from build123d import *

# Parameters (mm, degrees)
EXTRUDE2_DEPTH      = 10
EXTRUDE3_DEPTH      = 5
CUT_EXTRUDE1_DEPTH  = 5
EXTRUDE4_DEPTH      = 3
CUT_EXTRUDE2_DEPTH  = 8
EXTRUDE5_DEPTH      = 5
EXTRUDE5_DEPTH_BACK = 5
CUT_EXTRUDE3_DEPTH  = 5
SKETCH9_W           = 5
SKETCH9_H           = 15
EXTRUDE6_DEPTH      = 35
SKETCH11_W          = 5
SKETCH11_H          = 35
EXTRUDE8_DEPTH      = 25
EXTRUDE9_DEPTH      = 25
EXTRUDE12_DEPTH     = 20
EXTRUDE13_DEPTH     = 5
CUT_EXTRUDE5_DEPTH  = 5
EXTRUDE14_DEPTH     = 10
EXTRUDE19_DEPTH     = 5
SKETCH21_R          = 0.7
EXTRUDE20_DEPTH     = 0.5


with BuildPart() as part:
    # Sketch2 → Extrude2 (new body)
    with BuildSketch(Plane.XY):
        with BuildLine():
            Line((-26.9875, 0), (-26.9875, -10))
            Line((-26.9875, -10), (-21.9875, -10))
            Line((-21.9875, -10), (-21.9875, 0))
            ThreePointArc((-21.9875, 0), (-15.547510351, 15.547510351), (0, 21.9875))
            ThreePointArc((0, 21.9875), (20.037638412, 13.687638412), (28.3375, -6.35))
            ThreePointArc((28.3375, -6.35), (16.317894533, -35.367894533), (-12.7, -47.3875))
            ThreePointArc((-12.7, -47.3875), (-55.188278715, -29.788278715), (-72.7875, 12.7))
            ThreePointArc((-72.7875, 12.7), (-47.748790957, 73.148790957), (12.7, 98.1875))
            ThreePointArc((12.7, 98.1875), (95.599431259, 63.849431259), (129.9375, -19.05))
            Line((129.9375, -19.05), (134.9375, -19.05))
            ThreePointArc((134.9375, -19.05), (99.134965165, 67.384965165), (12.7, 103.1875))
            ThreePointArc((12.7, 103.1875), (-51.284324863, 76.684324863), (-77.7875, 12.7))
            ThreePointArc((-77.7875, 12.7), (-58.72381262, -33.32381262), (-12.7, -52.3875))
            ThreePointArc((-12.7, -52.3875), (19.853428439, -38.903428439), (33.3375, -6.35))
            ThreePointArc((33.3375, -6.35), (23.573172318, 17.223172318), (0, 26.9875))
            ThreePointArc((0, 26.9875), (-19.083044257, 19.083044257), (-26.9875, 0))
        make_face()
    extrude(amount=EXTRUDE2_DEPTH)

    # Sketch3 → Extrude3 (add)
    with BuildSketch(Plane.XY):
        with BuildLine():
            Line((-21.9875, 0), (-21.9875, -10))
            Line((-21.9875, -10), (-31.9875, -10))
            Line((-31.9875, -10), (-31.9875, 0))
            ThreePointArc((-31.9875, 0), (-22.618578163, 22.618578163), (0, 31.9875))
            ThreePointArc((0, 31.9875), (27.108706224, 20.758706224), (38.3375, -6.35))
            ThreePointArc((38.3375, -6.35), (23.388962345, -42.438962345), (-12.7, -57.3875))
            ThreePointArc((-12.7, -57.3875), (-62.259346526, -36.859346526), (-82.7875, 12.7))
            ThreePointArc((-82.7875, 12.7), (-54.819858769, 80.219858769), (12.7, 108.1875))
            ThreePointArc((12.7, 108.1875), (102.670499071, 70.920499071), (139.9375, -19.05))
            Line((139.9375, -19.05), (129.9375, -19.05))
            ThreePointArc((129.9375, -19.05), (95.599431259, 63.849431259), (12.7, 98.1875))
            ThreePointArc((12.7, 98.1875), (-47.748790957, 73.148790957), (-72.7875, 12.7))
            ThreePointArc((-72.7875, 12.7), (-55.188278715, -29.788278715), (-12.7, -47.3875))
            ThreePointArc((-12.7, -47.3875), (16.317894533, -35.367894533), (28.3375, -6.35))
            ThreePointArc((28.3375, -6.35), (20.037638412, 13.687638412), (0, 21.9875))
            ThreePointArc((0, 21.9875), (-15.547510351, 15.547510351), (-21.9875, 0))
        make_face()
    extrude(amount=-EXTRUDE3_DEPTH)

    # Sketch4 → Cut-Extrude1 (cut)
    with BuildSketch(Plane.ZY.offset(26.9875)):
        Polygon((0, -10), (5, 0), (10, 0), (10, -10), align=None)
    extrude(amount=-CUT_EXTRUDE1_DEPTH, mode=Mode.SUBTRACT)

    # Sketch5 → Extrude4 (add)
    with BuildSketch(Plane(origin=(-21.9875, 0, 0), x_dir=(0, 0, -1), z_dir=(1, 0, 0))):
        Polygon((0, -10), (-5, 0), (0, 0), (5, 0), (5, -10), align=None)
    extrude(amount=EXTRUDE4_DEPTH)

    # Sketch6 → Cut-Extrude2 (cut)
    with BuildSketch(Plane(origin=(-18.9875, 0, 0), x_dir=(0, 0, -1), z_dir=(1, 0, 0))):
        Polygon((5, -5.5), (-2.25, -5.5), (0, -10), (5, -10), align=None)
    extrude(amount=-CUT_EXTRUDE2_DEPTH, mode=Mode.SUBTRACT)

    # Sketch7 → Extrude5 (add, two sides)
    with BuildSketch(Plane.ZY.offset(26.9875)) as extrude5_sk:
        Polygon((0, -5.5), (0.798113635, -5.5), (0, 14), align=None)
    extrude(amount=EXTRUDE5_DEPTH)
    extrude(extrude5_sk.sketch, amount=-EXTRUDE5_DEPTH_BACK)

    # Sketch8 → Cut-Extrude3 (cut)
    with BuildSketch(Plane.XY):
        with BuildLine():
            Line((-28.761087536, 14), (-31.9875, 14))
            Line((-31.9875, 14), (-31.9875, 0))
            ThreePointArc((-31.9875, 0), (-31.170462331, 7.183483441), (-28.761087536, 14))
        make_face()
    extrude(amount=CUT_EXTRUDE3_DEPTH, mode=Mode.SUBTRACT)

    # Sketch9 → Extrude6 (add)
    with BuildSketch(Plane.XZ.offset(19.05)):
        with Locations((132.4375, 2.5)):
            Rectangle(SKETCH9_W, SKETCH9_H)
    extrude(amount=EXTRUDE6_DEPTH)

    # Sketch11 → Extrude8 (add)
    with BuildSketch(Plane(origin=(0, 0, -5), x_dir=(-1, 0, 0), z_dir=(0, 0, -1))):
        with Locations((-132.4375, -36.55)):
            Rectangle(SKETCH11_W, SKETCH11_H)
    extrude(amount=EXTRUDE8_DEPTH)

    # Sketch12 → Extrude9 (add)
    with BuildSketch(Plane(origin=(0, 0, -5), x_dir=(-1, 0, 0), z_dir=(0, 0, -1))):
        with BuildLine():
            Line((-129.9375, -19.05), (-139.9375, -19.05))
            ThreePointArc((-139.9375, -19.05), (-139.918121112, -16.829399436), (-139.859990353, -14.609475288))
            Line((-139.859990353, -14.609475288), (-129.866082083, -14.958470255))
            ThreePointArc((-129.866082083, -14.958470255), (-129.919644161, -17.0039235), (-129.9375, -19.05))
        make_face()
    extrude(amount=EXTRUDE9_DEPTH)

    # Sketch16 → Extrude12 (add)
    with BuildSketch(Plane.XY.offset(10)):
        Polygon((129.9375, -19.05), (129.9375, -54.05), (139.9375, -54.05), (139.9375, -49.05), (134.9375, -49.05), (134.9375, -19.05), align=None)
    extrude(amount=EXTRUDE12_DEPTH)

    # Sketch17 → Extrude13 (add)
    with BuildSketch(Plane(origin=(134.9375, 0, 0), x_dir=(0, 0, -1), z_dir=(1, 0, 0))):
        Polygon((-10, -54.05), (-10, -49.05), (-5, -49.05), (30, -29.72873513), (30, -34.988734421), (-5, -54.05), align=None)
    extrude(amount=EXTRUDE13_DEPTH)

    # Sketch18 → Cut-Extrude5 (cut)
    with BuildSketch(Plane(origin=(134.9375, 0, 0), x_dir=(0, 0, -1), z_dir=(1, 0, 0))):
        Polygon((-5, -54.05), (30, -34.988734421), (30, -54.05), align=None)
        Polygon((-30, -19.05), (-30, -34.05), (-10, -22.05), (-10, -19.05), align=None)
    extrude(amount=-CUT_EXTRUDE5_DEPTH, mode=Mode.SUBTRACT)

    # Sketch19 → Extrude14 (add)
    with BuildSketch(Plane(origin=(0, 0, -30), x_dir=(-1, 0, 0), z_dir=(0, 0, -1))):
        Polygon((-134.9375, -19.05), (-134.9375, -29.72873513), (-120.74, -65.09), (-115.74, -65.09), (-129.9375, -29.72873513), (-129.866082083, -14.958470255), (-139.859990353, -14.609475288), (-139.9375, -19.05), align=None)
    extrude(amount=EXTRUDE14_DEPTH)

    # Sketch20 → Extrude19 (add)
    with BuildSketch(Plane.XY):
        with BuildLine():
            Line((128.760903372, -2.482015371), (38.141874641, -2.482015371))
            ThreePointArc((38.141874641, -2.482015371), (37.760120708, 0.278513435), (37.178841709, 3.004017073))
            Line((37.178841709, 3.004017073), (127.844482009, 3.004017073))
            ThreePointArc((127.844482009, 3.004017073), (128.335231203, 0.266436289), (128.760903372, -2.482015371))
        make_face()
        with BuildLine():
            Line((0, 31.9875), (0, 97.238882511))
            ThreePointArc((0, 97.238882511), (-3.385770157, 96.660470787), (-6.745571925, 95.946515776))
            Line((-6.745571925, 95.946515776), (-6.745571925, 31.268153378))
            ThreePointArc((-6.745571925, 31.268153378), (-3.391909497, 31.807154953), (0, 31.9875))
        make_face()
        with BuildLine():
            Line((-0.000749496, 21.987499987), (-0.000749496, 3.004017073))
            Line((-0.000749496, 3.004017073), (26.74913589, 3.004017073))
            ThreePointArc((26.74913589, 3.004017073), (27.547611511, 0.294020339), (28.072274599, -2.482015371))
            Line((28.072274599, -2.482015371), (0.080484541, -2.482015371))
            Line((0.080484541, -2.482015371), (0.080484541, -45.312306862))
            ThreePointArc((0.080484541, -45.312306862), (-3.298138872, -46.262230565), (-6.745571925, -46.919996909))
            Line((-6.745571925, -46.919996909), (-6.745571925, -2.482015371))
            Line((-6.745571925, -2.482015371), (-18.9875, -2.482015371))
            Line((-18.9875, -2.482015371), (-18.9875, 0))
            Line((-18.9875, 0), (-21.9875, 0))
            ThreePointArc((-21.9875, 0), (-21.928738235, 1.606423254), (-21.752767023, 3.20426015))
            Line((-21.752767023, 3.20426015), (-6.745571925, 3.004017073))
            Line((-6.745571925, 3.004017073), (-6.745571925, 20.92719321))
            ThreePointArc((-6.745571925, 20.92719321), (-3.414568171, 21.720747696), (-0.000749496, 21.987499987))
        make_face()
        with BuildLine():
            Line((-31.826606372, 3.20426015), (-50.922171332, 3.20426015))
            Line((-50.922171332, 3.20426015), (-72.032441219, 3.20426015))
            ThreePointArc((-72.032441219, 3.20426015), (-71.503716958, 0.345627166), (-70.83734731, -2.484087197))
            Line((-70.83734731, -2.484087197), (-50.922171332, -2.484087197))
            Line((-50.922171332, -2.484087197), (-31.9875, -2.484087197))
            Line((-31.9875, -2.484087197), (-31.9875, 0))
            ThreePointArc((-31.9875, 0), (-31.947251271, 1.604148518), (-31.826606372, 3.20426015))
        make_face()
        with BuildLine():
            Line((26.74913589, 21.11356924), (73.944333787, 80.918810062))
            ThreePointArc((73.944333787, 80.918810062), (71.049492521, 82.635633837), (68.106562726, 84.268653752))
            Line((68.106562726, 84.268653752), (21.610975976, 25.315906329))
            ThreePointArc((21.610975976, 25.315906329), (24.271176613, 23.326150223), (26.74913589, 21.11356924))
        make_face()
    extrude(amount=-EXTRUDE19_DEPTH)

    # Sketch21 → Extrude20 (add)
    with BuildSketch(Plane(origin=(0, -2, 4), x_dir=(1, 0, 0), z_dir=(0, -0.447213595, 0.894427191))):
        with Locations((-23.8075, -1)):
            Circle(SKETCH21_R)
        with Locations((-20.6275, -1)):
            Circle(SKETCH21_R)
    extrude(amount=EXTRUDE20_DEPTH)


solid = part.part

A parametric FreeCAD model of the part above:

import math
import FreeCAD as App
import Part
import Sketcher
from FreeCAD import Vector
Q = App.Units.Quantity

doc = App.newDocument("Part")
params = doc.addObject("Spreadsheet::Sheet", "Params")
for row, (alias, value) in enumerate([
    ("sketch1_width", "5 mm"),
    ("sketch1_height", "10 mm"),
    ("pad1_length", "10 mm"),
    ("sketch2_width", "10 mm"),
    ("pad2_length", "5 mm"),
    ("sketch3_width", "10 mm"),
    ("sketch3_height", "5 mm"),
    ("pocket1_length", "5 mm"),
    ("sketch4_width", "10 mm"),
    ("pad3_length", "3 mm"),
    ("sketch5_height", "5 mm"),
    ("sketch5_width", "4.5 mm"),
    ("sketch5_height2", "7.25 mm"),
    ("pocket2_length", "8 mm"),
    ("sketch6_width", "19.5 mm"),
    ("pad4_length", "5 mm"),
    ("pad4_length2", "5 mm"),
    ("sketch7_height", "14 mm"),
    ("pocket3_length", "5 mm"),
    ("sketch8_width", "5 mm"),
    ("sketch8_height", "15 mm"),
    ("pad5_length", "35 mm"),
    ("sketch9_width", "5 mm"),
    ("sketch9_height", "35 mm"),
    ("pad6_length", "25 mm"),
    ("sketch10_width", "10 mm"),
    ("pad7_length", "25 mm"),
    ("sketch11_width", "10 mm"),
    ("sketch11_height", "35 mm"),
    ("pad8_length", "20 mm"),
    ("sketch12_width", "5 mm"),
    ("sketch12_width2", "5.259999 mm"),
    ("pad9_length", "5 mm"),
    ("sketch13_width", "15 mm"),
    ("sketch13_width2", "3 mm"),
    ("sketch13_height", "35 mm"),
    ("sketch13_height2", "20 mm"),
    ("pocket4_length", "5 mm"),
    ("sketch14_width", "5 mm"),
    ("sketch14_length", "10 mm"),
    ("pad10_length", "10 mm"),
    ("sketch15_width", "3 mm"),
    ("pad11_length", "5 mm"),
    ("sketch16_diameter", "1.4 mm"),
    ("pad12_length", "0.5 mm"),
], start=1):
    params.set(f"A{row}", alias)
    params.set(f"B{row}", "=" + value)
    params.setAlias(f"B{row}", alias)

body = doc.addObject("PartDesign::Body", "Body")

# Sketch on XY plane
sketch1 = body.newObject("Sketcher::SketchObject", "Sketch")
sketch1.AttachmentSupport = (doc.getObject("XY_Plane"), [""])
sketch1.MapMode = "FlatFace"
sketch1.addGeometry(Part.LineSegment(Vector(-27, 0, 0), Vector(-27, -10, 0)), False)
sketch1.addGeometry(Part.LineSegment(Vector(-27, -10, 0), Vector(-22, -10, 0)), False)
sketch1.addGeometry(Part.LineSegment(Vector(-22, -10, 0), Vector(-22, 0, 0)), False)
sketch1.addGeometry(Part.ArcOfCircle(Part.Circle(Vector(0, 0, 0), Vector(0, 0, 1), 22), math.radians(90), math.radians(180)), False)
sketch1.addGeometry(Part.ArcOfCircle(Part.Circle(Vector(0, -6, 0), Vector(0, 0, 1), 28), math.radians(0), math.radians(90)), False)
sketch1.addGeometry(Part.ArcOfCircle(Part.Circle(Vector(-13, -6, 0), Vector(0, 0, 1), 41), math.radians(-90), math.radians(0)), False)
sketch1.addGeometry(Part.ArcOfCircle(Part.Circle(Vector(-13, 13, 0), Vector(0, 0, 1), 60), math.radians(180), math.radians(270)), False)
sketch1.addGeometry(Part.ArcOfCircle(Part.Circle(Vector(13, 13, 0), Vector(0, 0, 1), 85), math.radians(90), math.radians(180)), False)
sketch1.addGeometry(Part.ArcOfCircle(Part.Circle(Vector(13, -19, 0), Vector(0, 0, 1), 117), math.radians(0), math.radians(90)), False)
sketch1.addGeometry(Part.LineSegment(Vector(130, -19, 0), Vector(135, -19, 0)), False)
sketch1.addGeometry(Part.ArcOfCircle(Part.Circle(Vector(13, -19, 0), Vector(0, 0, 1), 122), math.radians(0), math.radians(90)), False)
sketch1.addGeometry(Part.ArcOfCircle(Part.Circle(Vector(13, 13, 0), Vector(0, 0, 1), 90), math.radians(90), math.radians(180)), False)
sketch1.addGeometry(Part.ArcOfCircle(Part.Circle(Vector(-13, 13, 0), Vector(0, 0, 1), 65), math.radians(-180), math.radians(-90)), False)
sketch1.addGeometry(Part.ArcOfCircle(Part.Circle(Vector(-13, -6, 0), Vector(0, 0, 1), 46), math.radians(-90), math.radians(0)), False)
sketch1.addGeometry(Part.ArcOfCircle(Part.Circle(Vector(0, -6, 0), Vector(0, 0, 1), 33), math.radians(0), math.radians(90)), False)
sketch1.addGeometry(Part.ArcOfCircle(Part.Circle(Vector(0, 0, 0), Vector(0, 0, 1), 27), math.radians(90), math.radians(180)), False)
sketch1.addConstraint(Sketcher.Constraint("Coincident", 0, 2, 1, 1))
sketch1.addConstraint(Sketcher.Constraint("Coincident", 1, 2, 2, 1))
sketch1.addConstraint(Sketcher.Constraint("Tangent", 2, 2, 3, 2))
sketch1.addConstraint(Sketcher.Constraint("Tangent", 3, 1, 4, 2))
sketch1.addConstraint(Sketcher.Constraint("Tangent", 4, 1, 5, 2))
sketch1.addConstraint(Sketcher.Constraint("Tangent", 5, 1, 6, 2))
sketch1.addConstraint(Sketcher.Constraint("Tangent", 6, 1, 7, 2))
sketch1.addConstraint(Sketcher.Constraint("Tangent", 7, 1, 8, 2))
sketch1.addConstraint(Sketcher.Constraint("Coincident", 8, 1, 9, 1))
sketch1.addConstraint(Sketcher.Constraint("Coincident", 9, 2, 10, 1))
sketch1.addConstraint(Sketcher.Constraint("Tangent", 10, 2, 11, 1))
sketch1.addConstraint(Sketcher.Constraint("Tangent", 11, 2, 12, 1))
sketch1.addConstraint(Sketcher.Constraint("Tangent", 12, 2, 13, 1))
sketch1.addConstraint(Sketcher.Constraint("Tangent", 13, 2, 14, 1))
sketch1.addConstraint(Sketcher.Constraint("Tangent", 14, 2, 15, 1))
sketch1.addConstraint(Sketcher.Constraint("Tangent", 15, 2, 0, 1))
sketch1.addConstraint(Sketcher.Constraint("Vertical", 0))
sketch1.addConstraint(Sketcher.Constraint("Horizontal", 1))
sketch1.addConstraint(Sketcher.Constraint("Vertical", 2))
sketch1.addConstraint(Sketcher.Constraint("Horizontal", 9))
sketch1.addConstraint(Sketcher.Constraint("Coincident", 3, 3, -1, 1))
sketch1.addConstraint(Sketcher.Constraint("Coincident", 15, 3, -1, 1))
sketch1.addConstraint(Sketcher.Constraint("Coincident", 10, 3, 8, 3))
sketch1.addConstraint(Sketcher.Constraint("Coincident", 11, 3, 7, 3))
sketch1.addConstraint(Sketcher.Constraint("Coincident", 12, 3, 6, 3))
sketch1.addConstraint(Sketcher.Constraint("Coincident", 13, 3, 5, 3))
sketch1.addConstraint(Sketcher.Constraint("Coincident", 14, 3, 4, 3))
sketch1.addConstraint(Sketcher.Constraint("Symmetric", 6, 3, 7, 3, -2))
sketch1.addConstraint(Sketcher.Constraint("PointOnObject", 4, 3, -2))
sketch1.addConstraint(Sketcher.Constraint("Horizontal", 4, 3, 5, 3))
sketch1.addConstraint(Sketcher.Constraint("Horizontal", 10, 3, 8, 1))
sketch1.addConstraint(Sketcher.Constraint("Vertical", 5, 3, 6, 3))
sketch1.addConstraint(Sketcher.Constraint("Vertical", 7, 3, 8, 3))
sketch1.addConstraint(Sketcher.Constraint("DistanceX", 1, 1, 1, 2, 5.0))
sketch1.addConstraint(Sketcher.Constraint("DistanceY", 0, 2, 0, 1, 10.0))
sketch1.addConstraint(Sketcher.Constraint("DistanceX", 5, 3, -1, 1, 12.7))
sketch1.addConstraint(Sketcher.Constraint("DistanceY", -1, 1, 6, 3, 12.7))
sketch1.addConstraint(Sketcher.Constraint("Radius", 3, 21.9875))
sketch1.addConstraint(Sketcher.Constraint("Radius", 4, 28.3375))
sketch1.addConstraint(Sketcher.Constraint("Radius", 8, 117.2375))
sketch1.setExpression("Constraints[33]", "Params.sketch1_width")
sketch1.setExpression("Constraints[34]", "Params.sketch1_height")
pad1 = body.newObject("PartDesign::Pad", "Pad")
pad1.Profile = sketch1
pad1.setExpression("Length", "Params.pad1_length")

# Sketch on XY plane
sketch2 = body.newObject("Sketcher::SketchObject", "Sketch001")
sketch2.AttachmentSupport = (doc.getObject("XY_Plane"), [""])
sketch2.MapMode = "FlatFace"
sketch2.addGeometry(Part.LineSegment(Vector(-22, -10, 0), Vector(-22, 0, 0)), False)
sketch2.addGeometry(Part.ArcOfCircle(Part.Circle(Vector(0, 0, 0), Vector(0, 0, 1), 22), math.radians(90), math.radians(180)), False)
sketch2.addGeometry(Part.ArcOfCircle(Part.Circle(Vector(0, -6, 0), Vector(0, 0, 1), 28), math.radians(0), math.radians(90)), False)
sketch2.addGeometry(Part.ArcOfCircle(Part.Circle(Vector(-13, -6, 0), Vector(0, 0, 1), 41), math.radians(-90), math.radians(0)), False)
sketch2.addGeometry(Part.ArcOfCircle(Part.Circle(Vector(-13, 13, 0), Vector(0, 0, 1), 60), math.radians(180), math.radians(270)), False)
sketch2.addGeometry(Part.ArcOfCircle(Part.Circle(Vector(13, 13, 0), Vector(0, 0, 1), 85), math.radians(90), math.radians(180)), False)
sketch2.addGeometry(Part.ArcOfCircle(Part.Circle(Vector(13, -19, 0), Vector(0, 0, 1), 117), math.radians(0), math.radians(90)), False)
sketch2.addGeometry(Part.LineSegment(Vector(130, -19, 0), Vector(140, -19, 0)), False)
sketch2.addGeometry(Part.ArcOfCircle(Part.Circle(Vector(13, -19, 0), Vector(0, 0, 1), 127), math.radians(0), math.radians(90)), False)
sketch2.addGeometry(Part.ArcOfCircle(Part.Circle(Vector(13, 13, 0), Vector(0, 0, 1), 95), math.radians(90), math.radians(180)), False)
sketch2.addGeometry(Part.ArcOfCircle(Part.Circle(Vector(-13, 13, 0), Vector(0, 0, 1), 70), math.radians(-180), math.radians(-90)), False)
sketch2.addGeometry(Part.ArcOfCircle(Part.Circle(Vector(-13, -6, 0), Vector(0, 0, 1), 51), math.radians(-90), math.radians(0)), False)
sketch2.addGeometry(Part.ArcOfCircle(Part.Circle(Vector(0, -6, 0), Vector(0, 0, 1), 38), math.radians(0), math.radians(90)), False)
sketch2.addGeometry(Part.ArcOfCircle(Part.Circle(Vector(0, 0, 0), Vector(0, 0, 1), 32), math.radians(90), math.radians(180)), False)
sketch2.addGeometry(Part.LineSegment(Vector(-32, 0, 0), Vector(-32, -10, 0)), False)
sketch2.addGeometry(Part.LineSegment(Vector(-32, -10, 0), Vector(-22, -10, 0)), False)
sketch2.addConstraint(Sketcher.Constraint("Tangent", 0, 2, 1, 2))
sketch2.addConstraint(Sketcher.Constraint("Tangent", 1, 1, 2, 2))
sketch2.addConstraint(Sketcher.Constraint("Tangent", 2, 1, 3, 2))
sketch2.addConstraint(Sketcher.Constraint("Tangent", 3, 1, 4, 2))
sketch2.addConstraint(Sketcher.Constraint("Tangent", 4, 1, 5, 2))
sketch2.addConstraint(Sketcher.Constraint("Tangent", 5, 1, 6, 2))
sketch2.addConstraint(Sketcher.Constraint("Coincident", 6, 1, 7, 1))
sketch2.addConstraint(Sketcher.Constraint("Coincident", 7, 2, 8, 1))
sketch2.addConstraint(Sketcher.Constraint("Tangent", 8, 2, 9, 1))
sketch2.addConstraint(Sketcher.Constraint("Tangent", 9, 2, 10, 1))
sketch2.addConstraint(Sketcher.Constraint("Tangent", 10, 2, 11, 1))
sketch2.addConstraint(Sketcher.Constraint("Tangent", 11, 2, 12, 1))
sketch2.addConstraint(Sketcher.Constraint("Tangent", 12, 2, 13, 1))
sketch2.addConstraint(Sketcher.Constraint("Tangent", 13, 2, 14, 1))
sketch2.addConstraint(Sketcher.Constraint("Coincident", 14, 2, 15, 1))
sketch2.addConstraint(Sketcher.Constraint("Coincident", 15, 2, 0, 1))
sketch2.addConstraint(Sketcher.Constraint("Vertical", 0))
sketch2.addConstraint(Sketcher.Constraint("Horizontal", 7))
sketch2.addConstraint(Sketcher.Constraint("Vertical", 14))
sketch2.addConstraint(Sketcher.Constraint("Horizontal", 15))
sketch2.addConstraint(Sketcher.Constraint("Coincident", 1, 3, -1, 1))
sketch2.addConstraint(Sketcher.Constraint("Coincident", 13, 3, -1, 1))
sketch2.addConstraint(Sketcher.Constraint("Coincident", 8, 3, 6, 3))
sketch2.addConstraint(Sketcher.Constraint("Coincident", 9, 3, 5, 3))
sketch2.addConstraint(Sketcher.Constraint("Coincident", 10, 3, 4, 3))
sketch2.addConstraint(Sketcher.Constraint("Coincident", 11, 3, 3, 3))
sketch2.addConstraint(Sketcher.Constraint("Coincident", 12, 3, 2, 3))
sketch2.addConstraint(Sketcher.Constraint("Symmetric", 4, 3, 5, 3, -2))
sketch2.addConstraint(Sketcher.Constraint("PointOnObject", 2, 3, -2))
sketch2.addConstraint(Sketcher.Constraint("Horizontal", 2, 3, 3, 3))
sketch2.addConstraint(Sketcher.Constraint("Horizontal", 8, 3, 6, 1))
sketch2.addConstraint(Sketcher.Constraint("Vertical", 3, 3, 4, 3))
sketch2.addConstraint(Sketcher.Constraint("Vertical", 5, 3, 6, 3))
sketch2.addConstraint(Sketcher.Constraint("Equal", 15, 0))
sketch2.addConstraint(Sketcher.Constraint("DistanceX", 7, 1, 7, 2, 10.0))
sketch2.addConstraint(Sketcher.Constraint("DistanceX", 3, 3, -1, 1, 12.7))
sketch2.addConstraint(Sketcher.Constraint("DistanceY", -1, 1, 4, 3, 12.7))
sketch2.addConstraint(Sketcher.Constraint("Radius", 1, 21.9875))
sketch2.addConstraint(Sketcher.Constraint("Radius", 2, 28.3375))
sketch2.addConstraint(Sketcher.Constraint("Radius", 6, 117.2375))
sketch2.setExpression("Constraints[34]", "Params.sketch2_width")
pad2 = body.newObject("PartDesign::Pad", "Pad001")
pad2.Profile = sketch2
pad2.setExpression("Length", "Params.pad2_length")
pad2.Reversed = True

# Sketch on YZ plane
sketch3 = body.newObject("Sketcher::SketchObject", "Sketch002")
sketch3.AttachmentSupport = (doc.getObject("YZ_Plane"), [""])
sketch3.MapMode = "FlatFace"
sketch3.AttachmentOffset = App.Placement(Vector(0, 0, -26.9875), App.Rotation())
sketch3.addGeometry(Part.LineSegment(Vector(0, 5, 0), Vector(-10, 0, 0)), False)
sketch3.addGeometry(Part.LineSegment(Vector(-10, 0, 0), Vector(-10, 10, 0)), False)
sketch3.addGeometry(Part.LineSegment(Vector(-10, 10, 0), Vector(0, 10, 0)), False)
sketch3.addGeometry(Part.LineSegment(Vector(0, 10, 0), Vector(0, 5, 0)), False)
sketch3.addConstraint(Sketcher.Constraint("Coincident", 0, 2, 1, 1))
sketch3.addConstraint(Sketcher.Constraint("Coincident", 1, 2, 2, 1))
sketch3.addConstraint(Sketcher.Constraint("Coincident", 2, 2, 3, 1))
sketch3.addConstraint(Sketcher.Constraint("Coincident", 3, 2, 0, 1))
sketch3.addConstraint(Sketcher.Constraint("Vertical", 1))
sketch3.addConstraint(Sketcher.Constraint("Horizontal", 2))
sketch3.addConstraint(Sketcher.Constraint("Vertical", 3))
sketch3.addConstraint(Sketcher.Constraint("PointOnObject", 0, 2, -1))
sketch3.addConstraint(Sketcher.Constraint("PointOnObject", 2, 2, -2))
sketch3.addConstraint(Sketcher.Constraint("Equal", 2, 1))
sketch3.addConstraint(Sketcher.Constraint("DistanceX", 2, 1, 2, 2, 10.0))
sketch3.addConstraint(Sketcher.Constraint("DistanceY", 3, 2, 3, 1, 5.0))
sketch3.setExpression("Constraints[10]", "Params.sketch3_width")
sketch3.setExpression("Constraints[11]", "Params.sketch3_height")
pocket1 = body.newObject("PartDesign::Pocket", "Pocket")
pocket1.Profile = sketch3
pocket1.setExpression("Length", "Params.pocket1_length")
pocket1.Reversed = True

# Sketch on YZ plane
sketch4 = body.newObject("Sketcher::SketchObject", "Sketch003")
sketch4.AttachmentSupport = (doc.getObject("YZ_Plane"), [""])
sketch4.MapMode = "FlatFace"
sketch4.AttachmentOffset = App.Placement(Vector(0, 0, -21.9875), App.Rotation())
sketch4.addGeometry(Part.LineSegment(Vector(0, 5, 0), Vector(-10, 0, 0)), False)
sketch4.addGeometry(Part.LineSegment(Vector(-10, 0, 0), Vector(-10, -5, 0)), False)
sketch4.addGeometry(Part.LineSegment(Vector(-10, -5, 0), Vector(0, -5, 0)), False)
sketch4.addGeometry(Part.LineSegment(Vector(0, -5, 0), Vector(0, 5, 0)), False)
sketch4.addConstraint(Sketcher.Constraint("Coincident", 0, 2, 1, 1))
sketch4.addConstraint(Sketcher.Constraint("Coincident", 1, 2, 2, 1))
sketch4.addConstraint(Sketcher.Constraint("Coincident", 2, 2, 3, 1))
sketch4.addConstraint(Sketcher.Constraint("Coincident", 3, 2, 0, 1))
sketch4.addConstraint(Sketcher.Constraint("Vertical", 1))
sketch4.addConstraint(Sketcher.Constraint("Horizontal", 2))
sketch4.addConstraint(Sketcher.Constraint("Vertical", 3))
sketch4.addConstraint(Sketcher.Constraint("Symmetric", 2, 2, 3, 2, -1, 1))
sketch4.addConstraint(Sketcher.Constraint("PointOnObject", 0, 2, -1))
sketch4.addConstraint(Sketcher.Constraint("Equal", 2, 3))
sketch4.addConstraint(Sketcher.Constraint("DistanceX", 2, 1, 2, 2, 10.0))
sketch4.setExpression("Constraints[10]", "Params.sketch4_width")
pad3 = body.newObject("PartDesign::Pad", "Pad002")
pad3.Profile = sketch4
pad3.setExpression("Length", "Params.pad3_length")

# Sketch on YZ plane
sketch5 = body.newObject("Sketcher::SketchObject", "Sketch004")
sketch5.AttachmentSupport = (doc.getObject("YZ_Plane"), [""])
sketch5.MapMode = "FlatFace"
sketch5.AttachmentOffset = App.Placement(Vector(0, 0, -18.9875), App.Rotation())
sketch5.addGeometry(Part.LineSegment(Vector(-5.5, -5, 0), Vector(-5.5, 2.2, 0)), False)
sketch5.addGeometry(Part.LineSegment(Vector(-5.5, 2.2, 0), Vector(-10, 0, 0)), False)
sketch5.addGeometry(Part.LineSegment(Vector(-10, 0, 0), Vector(-10, -5, 0)), False)
sketch5.addGeometry(Part.LineSegment(Vector(-10, -5, 0), Vector(-5.5, -5, 0)), False)
sketch5.addConstraint(Sketcher.Constraint("Coincident", 0, 2, 1, 1))
sketch5.addConstraint(Sketcher.Constraint("Coincident", 1, 2, 2, 1))
sketch5.addConstraint(Sketcher.Constraint("Coincident", 2, 2, 3, 1))
sketch5.addConstraint(Sketcher.Constraint("Coincident", 3, 2, 0, 1))
sketch5.addConstraint(Sketcher.Constraint("Vertical", 0))
sketch5.addConstraint(Sketcher.Constraint("Vertical", 2))
sketch5.addConstraint(Sketcher.Constraint("Horizontal", 3))
sketch5.addConstraint(Sketcher.Constraint("PointOnObject", 1, 2, -1))
sketch5.addConstraint(Sketcher.Constraint("DistanceY", 2, 2, 2, 1, 5.0))
sketch5.addConstraint(Sketcher.Constraint("DistanceX", 3, 1, 3, 2, 4.5))
sketch5.addConstraint(Sketcher.Constraint("DistanceX", 1, 2, -1, 1, 10.0))
sketch5.addConstraint(Sketcher.Constraint("DistanceY", 0, 1, 0, 2, 7.25))
sketch5.setExpression("Constraints[8]", "Params.sketch5_height")
sketch5.setExpression("Constraints[9]", "Params.sketch5_width")
sketch5.setExpression("Constraints[11]", "Params.sketch5_height2")
pocket2 = body.newObject("PartDesign::Pocket", "Pocket001")
pocket2.Profile = sketch5
pocket2.setExpression("Length", "Params.pocket2_length")

# Sketch on YZ plane
sketch6 = body.newObject("Sketcher::SketchObject", "Sketch005")
sketch6.AttachmentSupport = (doc.getObject("YZ_Plane"), [""])
sketch6.MapMode = "FlatFace"
sketch6.AttachmentOffset = App.Placement(Vector(0, 0, -26.9875), App.Rotation())
sketch6.addGeometry(Part.LineSegment(Vector(-5.5, 0, 0), Vector(-5.5, 0.8, 0)), False)
sketch6.addGeometry(Part.LineSegment(Vector(-5.5, 0.8, 0), Vector(14, 0, 0)), False)
sketch6.addGeometry(Part.LineSegment(Vector(14, 0, 0), Vector(-5.5, 0, 0)), False)
sketch6.addConstraint(Sketcher.Constraint("Coincident", 0, 2, 1, 1))
sketch6.addConstraint(Sketcher.Constraint("Coincident", 1, 2, 2, 1))
sketch6.addConstraint(Sketcher.Constraint("Coincident", 2, 2, 0, 1))
sketch6.addConstraint(Sketcher.Constraint("Vertical", 0))
sketch6.addConstraint(Sketcher.Constraint("Horizontal", 2))
sketch6.addConstraint(Sketcher.Constraint("PointOnObject", 1, 2, -1))
sketch6.addConstraint(Sketcher.Constraint("DistanceX", 2, 2, 2, 1, 19.5))
sketch6.addConstraint(Sketcher.Constraint("DistanceX", -1, 1, 1, 2, 14.0))
sketch6.addConstraint(Sketcher.Constraint("DistanceY", 0, 1, 0, 2, 0.798114))
sketch6.setExpression("Constraints[6]", "Params.sketch6_width")
pad4 = body.newObject("PartDesign::Pad", "Pad003")
pad4.Profile = sketch6
pad4.Type = "TwoLengths"
pad4.setExpression("Length", "Params.pad4_length")
pad4.setExpression("Length2", "Params.pad4_length2")
pad4.Reversed = True

# Sketch on XY plane
sketch7 = body.newObject("Sketcher::SketchObject", "Sketch006")
sketch7.AttachmentSupport = (doc.getObject("XY_Plane"), [""])
sketch7.MapMode = "FlatFace"
sketch7.addGeometry(Part.LineSegment(Vector(-28.8, 14, 0), Vector(-32, 14, 0)), False)
sketch7.addGeometry(Part.LineSegment(Vector(-32, 14, 0), Vector(-32, 0, 0)), False)
sketch7.addGeometry(Part.ArcOfCircle(Part.Circle(Vector(0, 0, 0), Vector(0, 0, 1), 32), math.radians(154), math.radians(180)), False)
sketch7.addConstraint(Sketcher.Constraint("Coincident", 0, 2, 1, 1))
sketch7.addConstraint(Sketcher.Constraint("Tangent", 1, 2, 2, 2))
sketch7.addConstraint(Sketcher.Constraint("Coincident", 2, 1, 0, 1))
sketch7.addConstraint(Sketcher.Constraint("Horizontal", 0))
sketch7.addConstraint(Sketcher.Constraint("Vertical", 1))
sketch7.addConstraint(Sketcher.Constraint("Coincident", 2, 3, -1, 1))
sketch7.addConstraint(Sketcher.Constraint("DistanceY", 1, 2, 1, 1, 14.0))
sketch7.addConstraint(Sketcher.Constraint("Radius", 2, 31.9875))
sketch7.setExpression("Constraints[6]", "Params.sketch7_height")
pocket3 = body.newObject("PartDesign::Pocket", "Pocket002")
pocket3.Profile = sketch7
pocket3.setExpression("Length", "Params.pocket3_length")
pocket3.Reversed = True

# Sketch on XZ plane
sketch8 = body.newObject("Sketcher::SketchObject", "Sketch007")
sketch8.AttachmentSupport = (doc.getObject("XZ_Plane"), [""])
sketch8.MapMode = "FlatFace"
sketch8.AttachmentOffset = App.Placement(Vector(0, 0, 19.05), App.Rotation())
sketch8.addGeometry(Part.LineSegment(Vector(130, 10, 0), Vector(130, -5, 0)), False)
sketch8.addGeometry(Part.LineSegment(Vector(130, -5, 0), Vector(135, -5, 0)), False)
sketch8.addGeometry(Part.LineSegment(Vector(135, -5, 0), Vector(135, 10, 0)), False)
sketch8.addGeometry(Part.LineSegment(Vector(135, 10, 0), Vector(130, 10, 0)), False)
sketch8.addConstraint(Sketcher.Constraint("Coincident", 0, 2, 1, 1))
sketch8.addConstraint(Sketcher.Constraint("Coincident", 1, 2, 2, 1))
sketch8.addConstraint(Sketcher.Constraint("Coincident", 2, 2, 3, 1))
sketch8.addConstraint(Sketcher.Constraint("Coincident", 3, 2, 0, 1))
sketch8.addConstraint(Sketcher.Constraint("Vertical", 0))
sketch8.addConstraint(Sketcher.Constraint("Horizontal", 1))
sketch8.addConstraint(Sketcher.Constraint("Vertical", 2))
sketch8.addConstraint(Sketcher.Constraint("Horizontal", 3))
sketch8.addConstraint(Sketcher.Constraint("DistanceX", 1, 1, 1, 2, 5.0))
sketch8.addConstraint(Sketcher.Constraint("DistanceY", 0, 2, 0, 1, 15.0))
sketch8.addConstraint(Sketcher.Constraint("DistanceY", 0, 2, -1, 1, 5.0))
sketch8.addConstraint(Sketcher.Constraint("DistanceX", -1, 1, 0, 2, 129.9375))
sketch8.setExpression("Constraints[8]", "Params.sketch8_width")
sketch8.setExpression("Constraints[9]", "Params.sketch8_height")
pad5 = body.newObject("PartDesign::Pad", "Pad004")
pad5.Profile = sketch8
pad5.setExpression("Length", "Params.pad5_length")

# Sketch on XY plane
sketch9 = body.newObject("Sketcher::SketchObject", "Sketch008")
sketch9.AttachmentSupport = (doc.getObject("XY_Plane"), [""])
sketch9.MapMode = "FlatFace"
sketch9.AttachmentOffset = App.Placement(Vector(0, 0, -5), App.Rotation())
sketch9.addGeometry(Part.LineSegment(Vector(135, -19, 0), Vector(135, -54, 0)), False)
sketch9.addGeometry(Part.LineSegment(Vector(135, -54, 0), Vector(130, -54, 0)), False)
sketch9.addGeometry(Part.LineSegment(Vector(130, -54, 0), Vector(130, -19, 0)), False)
sketch9.addGeometry(Part.LineSegment(Vector(130, -19, 0), Vector(135, -19, 0)), False)
sketch9.addConstraint(Sketcher.Constraint("Coincident", 0, 2, 1, 1))
sketch9.addConstraint(Sketcher.Constraint("Coincident", 1, 2, 2, 1))
sketch9.addConstraint(Sketcher.Constraint("Coincident", 2, 2, 3, 1))
sketch9.addConstraint(Sketcher.Constraint("Coincident", 3, 2, 0, 1))
sketch9.addConstraint(Sketcher.Constraint("Vertical", 0))
sketch9.addConstraint(Sketcher.Constraint("Horizontal", 1))
sketch9.addConstraint(Sketcher.Constraint("Vertical", 2))
sketch9.addConstraint(Sketcher.Constraint("Horizontal", 3))
sketch9.addConstraint(Sketcher.Constraint("DistanceX", 1, 2, 1, 1, 5.0))
sketch9.addConstraint(Sketcher.Constraint("DistanceY", 0, 2, 0, 1, 35.0))
sketch9.addConstraint(Sketcher.Constraint("DistanceY", 0, 2, -1, 1, 54.05))
sketch9.addConstraint(Sketcher.Constraint("DistanceX", -1, 1, 0, 2, 134.9375))
sketch9.setExpression("Constraints[8]", "Params.sketch9_width")
sketch9.setExpression("Constraints[9]", "Params.sketch9_height")
pad6 = body.newObject("PartDesign::Pad", "Pad005")
pad6.Profile = sketch9
pad6.setExpression("Length", "Params.pad6_length")
pad6.Reversed = True

# Sketch on XY plane
sketch10 = body.newObject("Sketcher::SketchObject", "Sketch009")
sketch10.AttachmentSupport = (doc.getObject("XY_Plane"), [""])
sketch10.MapMode = "FlatFace"
sketch10.AttachmentOffset = App.Placement(Vector(0, 0, -5), App.Rotation())
sketch10.addGeometry(Part.LineSegment(Vector(139.9, -19.1, 0), Vector(129.9, -19.1, 0)), False)
sketch10.addGeometry(Part.ArcOfCircle(Part.Circle(Vector(12.7, -19, 0), Vector(0, 0, 1), 117.2), math.radians(0), math.radians(2)), False)
sketch10.addGeometry(Part.LineSegment(Vector(129.9, -15, 0), Vector(139.9, -14.6, 0)), False)
sketch10.addGeometry(Part.ArcOfCircle(Part.Circle(Vector(12.7, -19.1, 0), Vector(0, 0, 1), 127.2), math.radians(0), math.radians(2)), False)
sketch10.addConstraint(Sketcher.Constraint("Coincident", 0, 2, 1, 1))
sketch10.addConstraint(Sketcher.Constraint("Coincident", 1, 2, 2, 1))
sketch10.addConstraint(Sketcher.Constraint("Coincident", 2, 2, 3, 2))
sketch10.addConstraint(Sketcher.Constraint("Coincident", 3, 1, 0, 1))
sketch10.addConstraint(Sketcher.Constraint("Horizontal", 0))
sketch10.addConstraint(Sketcher.Constraint("Coincident", 3, 3, 1, 3))
sketch10.addConstraint(Sketcher.Constraint("Horizontal", 3, 3, 0, 2))
sketch10.addConstraint(Sketcher.Constraint("DistanceX", 0, 2, 0, 1, 10.0))
sketch10.addConstraint(Sketcher.Constraint("Angle", 2, Q("2 deg")))
sketch10.addConstraint(Sketcher.Constraint("DistanceX", -1, 1, 1, 3, 12.7))
sketch10.addConstraint(Sketcher.Constraint("Radius", 1, 117.2375))
sketch10.addConstraint(Sketcher.Constraint("DistanceY", 1, 3, -1, 1, 19.05))
sketch10.addConstraint(Sketcher.Constraint("DistanceY", 1, 2, -1, 1, 14.95847))
sketch10.setExpression("Constraints[7]", "Params.sketch10_width")
pad7 = body.newObject("PartDesign::Pad", "Pad006")
pad7.Profile = sketch10
pad7.setExpression("Length", "Params.pad7_length")
pad7.Reversed = True

# Sketch on XY plane
sketch11 = body.newObject("Sketcher::SketchObject", "Sketch010")
sketch11.AttachmentSupport = (doc.getObject("XY_Plane"), [""])
sketch11.MapMode = "FlatFace"
sketch11.AttachmentOffset = App.Placement(Vector(0, 0, 10), App.Rotation())
sketch11.addGeometry(Part.LineSegment(Vector(130, -19, 0), Vector(130, -54, 0)), False)
sketch11.addGeometry(Part.LineSegment(Vector(130, -54, 0), Vector(140, -54, 0)), False)
sketch11.addGeometry(Part.LineSegment(Vector(140, -54, 0), Vector(140, -49, 0)), False)
sketch11.addGeometry(Part.LineSegment(Vector(140, -49, 0), Vector(135, -49, 0)), False)
sketch11.addGeometry(Part.LineSegment(Vector(135, -49, 0), Vector(135, -19, 0)), False)
sketch11.addGeometry(Part.LineSegment(Vector(135, -19, 0), Vector(130, -19, 0)), False)
sketch11.addConstraint(Sketcher.Constraint("Coincident", 0, 2, 1, 1))
sketch11.addConstraint(Sketcher.Constraint("Coincident", 1, 2, 2, 1))
sketch11.addConstraint(Sketcher.Constraint("Coincident", 2, 2, 3, 1))
sketch11.addConstraint(Sketcher.Constraint("Coincident", 3, 2, 4, 1))
sketch11.addConstraint(Sketcher.Constraint("Coincident", 4, 2, 5, 1))
sketch11.addConstraint(Sketcher.Constraint("Coincident", 5, 2, 0, 1))
sketch11.addConstraint(Sketcher.Constraint("Vertical", 0))
sketch11.addConstraint(Sketcher.Constraint("Horizontal", 1))
sketch11.addConstraint(Sketcher.Constraint("Vertical", 2))
sketch11.addConstraint(Sketcher.Constraint("Horizontal", 3))
sketch11.addConstraint(Sketcher.Constraint("Vertical", 4))
sketch11.addConstraint(Sketcher.Constraint("Horizontal", 5))
sketch11.addConstraint(Sketcher.Constraint("Equal", 3, 5))
sketch11.addConstraint(Sketcher.Constraint("Equal", 5, 2))
sketch11.addConstraint(Sketcher.Constraint("DistanceX", 1, 1, 1, 2, 10.0))
sketch11.addConstraint(Sketcher.Constraint("DistanceY", 0, 2, 0, 1, 35.0))
sketch11.addConstraint(Sketcher.Constraint("DistanceY", 0, 2, -1, 1, 54.05))
sketch11.addConstraint(Sketcher.Constraint("DistanceX", -1, 1, 0, 2, 129.9375))
sketch11.setExpression("Constraints[14]", "Params.sketch11_width")
sketch11.setExpression("Constraints[15]", "Params.sketch11_height")
pad8 = body.newObject("PartDesign::Pad", "Pad007")
pad8.Profile = sketch11
pad8.setExpression("Length", "Params.pad8_length")

# Sketch on YZ plane
sketch12 = body.newObject("Sketcher::SketchObject", "Sketch011")
sketch12.AttachmentSupport = (doc.getObject("YZ_Plane"), [""])
sketch12.MapMode = "FlatFace"
sketch12.AttachmentOffset = App.Placement(Vector(0, 0, 134.9375), App.Rotation())
sketch12.addGeometry(Part.LineSegment(Vector(-49, 10, 0), Vector(-54, 10, 0)), False)
sketch12.addGeometry(Part.LineSegment(Vector(-54, 10, 0), Vector(-54, 5, 0)), False)
sketch12.addGeometry(Part.LineSegment(Vector(-54, 5, 0), Vector(-35, -30, 0)), False)
sketch12.addGeometry(Part.LineSegment(Vector(-35, -30, 0), Vector(-30, -30, 0)), False)
sketch12.addGeometry(Part.LineSegment(Vector(-30, -30, 0), Vector(-49, 5, 0)), False)
sketch12.addGeometry(Part.LineSegment(Vector(-49, 5, 0), Vector(-49, 10, 0)), False)
sketch12.addConstraint(Sketcher.Constraint("Coincident", 0, 2, 1, 1))
sketch12.addConstraint(Sketcher.Constraint("Coincident", 1, 2, 2, 1))
sketch12.addConstraint(Sketcher.Constraint("Coincident", 2, 2, 3, 1))
sketch12.addConstraint(Sketcher.Constraint("Coincident", 3, 2, 4, 1))
sketch12.addConstraint(Sketcher.Constraint("Coincident", 4, 2, 5, 1))
sketch12.addConstraint(Sketcher.Constraint("Coincident", 5, 2, 0, 1))
sketch12.addConstraint(Sketcher.Constraint("Horizontal", 0))
sketch12.addConstraint(Sketcher.Constraint("Vertical", 1))
sketch12.addConstraint(Sketcher.Constraint("Horizontal", 3))
sketch12.addConstraint(Sketcher.Constraint("Vertical", 5))
sketch12.addConstraint(Sketcher.Constraint("Horizontal", 1, 2, 4, 2))
sketch12.addConstraint(Sketcher.Constraint("Equal", 0, 1))
sketch12.addConstraint(Sketcher.Constraint("DistanceX", 0, 2, 0, 1, 5.0))
sketch12.addConstraint(Sketcher.Constraint("DistanceY", -1, 1, 0, 2, 10.0))
sketch12.addConstraint(Sketcher.Constraint("DistanceY", 2, 2, -1, 1, 30.0))
sketch12.addConstraint(Sketcher.Constraint("DistanceX", 3, 1, 3, 2, 5.259999))
sketch12.addConstraint(Sketcher.Constraint("DistanceX", 0, 2, -1, 1, 54.05))
sketch12.addConstraint(Sketcher.Constraint("Distance", 2, 39.853881))
sketch12.setExpression("Constraints[12]", "Params.sketch12_width")
sketch12.setExpression("Constraints[15]", "Params.sketch12_width2")
pad9 = body.newObject("PartDesign::Pad", "Pad008")
pad9.Profile = sketch12
pad9.setExpression("Length", "Params.pad9_length")

# Sketch on YZ plane
sketch13 = body.newObject("Sketcher::SketchObject", "Sketch012")
sketch13.AttachmentSupport = (doc.getObject("YZ_Plane"), [""])
sketch13.MapMode = "FlatFace"
sketch13.AttachmentOffset = App.Placement(Vector(0, 0, 134.9375), App.Rotation())
sketch13.addGeometry(Part.LineSegment(Vector(-35, -30, 0), Vector(-54, 5, 0)), False)
sketch13.addGeometry(Part.LineSegment(Vector(-54, 5, 0), Vector(-54, -30, 0)), False)
sketch13.addGeometry(Part.LineSegment(Vector(-54, -30, 0), Vector(-35, -30, 0)), False)
sketch13.addGeometry(Part.LineSegment(Vector(-19.1, 30, 0), Vector(-34, 30, 0)), False)
sketch13.addGeometry(Part.LineSegment(Vector(-34, 30, 0), Vector(-22.1, 10, 0)), False)
sketch13.addGeometry(Part.LineSegment(Vector(-22.1, 10, 0), Vector(-19.1, 10, 0)), False)
sketch13.addGeometry(Part.LineSegment(Vector(-19.1, 10, 0), Vector(-19.1, 30, 0)), False)
sketch13.addConstraint(Sketcher.Constraint("Coincident", 0, 2, 1, 1))
sketch13.addConstraint(Sketcher.Constraint("Coincident", 1, 2, 2, 1))
sketch13.addConstraint(Sketcher.Constraint("Coincident", 2, 2, 0, 1))
sketch13.addConstraint(Sketcher.Constraint("Coincident", 3, 2, 4, 1))
sketch13.addConstraint(Sketcher.Constraint("Coincident", 4, 2, 5, 1))
sketch13.addConstraint(Sketcher.Constraint("Coincident", 5, 2, 6, 1))
sketch13.addConstraint(Sketcher.Constraint("Coincident", 6, 2, 3, 1))
sketch13.addConstraint(Sketcher.Constraint("Vertical", 1))
sketch13.addConstraint(Sketcher.Constraint("Horizontal", 2))
sketch13.addConstraint(Sketcher.Constraint("Horizontal", 3))
sketch13.addConstraint(Sketcher.Constraint("Horizontal", 5))
sketch13.addConstraint(Sketcher.Constraint("Vertical", 6))
sketch13.addConstraint(Sketcher.Constraint("DistanceX", 3, 2, 3, 1, 15.0))
sketch13.addConstraint(Sketcher.Constraint("DistanceX", 5, 1, 5, 2, 3.0))
sketch13.addConstraint(Sketcher.Constraint("DistanceY", 1, 2, 1, 1, 35.0))
sketch13.addConstraint(Sketcher.Constraint("DistanceY", 6, 1, 6, 2, 20.0))
sketch13.addConstraint(Sketcher.Constraint("DistanceY", -1, 1, 0, 2, 5.0))
sketch13.addConstraint(Sketcher.Constraint("DistanceY", -1, 1, 3, 2, 30.0))
sketch13.addConstraint(Sketcher.Constraint("DistanceX", 0, 2, 3, 2, 20.0))
sketch13.addConstraint(Sketcher.Constraint("DistanceX", 0, 2, -1, 1, 54.05))
sketch13.addConstraint(Sketcher.Constraint("Distance", 0, 39.853881))
sketch13.setExpression("Constraints[12]", "Params.sketch13_width")
sketch13.setExpression("Constraints[13]", "Params.sketch13_width2")
sketch13.setExpression("Constraints[14]", "Params.sketch13_height")
sketch13.setExpression("Constraints[15]", "Params.sketch13_height2")
pocket4 = body.newObject("PartDesign::Pocket", "Pocket003")
pocket4.Profile = sketch13
pocket4.setExpression("Length", "Params.pocket4_length")

# Sketch on XY plane
sketch14 = body.newObject("Sketcher::SketchObject", "Sketch013")
sketch14.AttachmentSupport = (doc.getObject("XY_Plane"), [""])
sketch14.MapMode = "FlatFace"
sketch14.AttachmentOffset = App.Placement(Vector(0, 0, -30), App.Rotation())
sketch14.addGeometry(Part.LineSegment(Vector(134.9, -19.1, 0), Vector(134.9, -29.7, 0)), False)
sketch14.addGeometry(Part.LineSegment(Vector(134.9, -29.7, 0), Vector(120.7, -65.1, 0)), False)
sketch14.addGeometry(Part.LineSegment(Vector(120.7, -65.1, 0), Vector(115.7, -65.1, 0)), False)
sketch14.addGeometry(Part.LineSegment(Vector(115.7, -65.1, 0), Vector(129.9, -29.7, 0)), False)
sketch14.addGeometry(Part.LineSegment(Vector(129.9, -29.7, 0), Vector(129.9, -15, 0)), False)
sketch14.addGeometry(Part.LineSegment(Vector(129.9, -15, 0), Vector(139.9, -14.6, 0)), False)
sketch14.addGeometry(Part.LineSegment(Vector(139.9, -14.6, 0), Vector(139.9, -19.1, 0)), False)
sketch14.addGeometry(Part.LineSegment(Vector(139.9, -19.1, 0), Vector(134.9, -19.1, 0)), False)
sketch14.addConstraint(Sketcher.Constraint("Coincident", 0, 2, 1, 1))
sketch14.addConstraint(Sketcher.Constraint("Coincident", 1, 2, 2, 1))
sketch14.addConstraint(Sketcher.Constraint("Coincident", 2, 2, 3, 1))
sketch14.addConstraint(Sketcher.Constraint("Coincident", 3, 2, 4, 1))
sketch14.addConstraint(Sketcher.Constraint("Coincident", 4, 2, 5, 1))
sketch14.addConstraint(Sketcher.Constraint("Coincident", 5, 2, 6, 1))
sketch14.addConstraint(Sketcher.Constraint("Coincident", 6, 2, 7, 1))
sketch14.addConstraint(Sketcher.Constraint("Coincident", 7, 2, 0, 1))
sketch14.addConstraint(Sketcher.Constraint("Vertical", 0))
sketch14.addConstraint(Sketcher.Constraint("Horizontal", 2))
sketch14.addConstraint(Sketcher.Constraint("Horizontal", 7))
sketch14.addConstraint(Sketcher.Constraint("Parallel", 1, 3))
sketch14.addConstraint(Sketcher.Constraint("Horizontal", 0, 2, 3, 2))
sketch14.addConstraint(Sketcher.Constraint("Equal", 2, 7))
sketch14.addConstraint(Sketcher.Constraint("DistanceX", 2, 2, 2, 1, 5.0))
sketch14.addConstraint(Sketcher.Constraint("Angle", 5, Q("2 deg")))
sketch14.addConstraint(Sketcher.Constraint("Angle", 6, Q("-89 deg")))
sketch14.addConstraint(Sketcher.Constraint("Distance", 5, 10.0))
sketch14.addConstraint(Sketcher.Constraint("DistanceX", -1, 1, 1, 2, 120.74))
sketch14.addConstraint(Sketcher.Constraint("DistanceY", 1, 2, -1, 1, 65.09))
sketch14.addConstraint(Sketcher.Constraint("DistanceY", 6, 2, -1, 1, 19.05))
sketch14.addConstraint(Sketcher.Constraint("Distance", 6, 4.441201))
sketch14.addConstraint(Sketcher.Constraint("DistanceX", -1, 1, 0, 2, 134.9375))
sketch14.addConstraint(Sketcher.Constraint("Distance", 1, 38.104961))
sketch14.setExpression("Constraints[14]", "Params.sketch14_width")
sketch14.setExpression("Constraints[17]", "Params.sketch14_length")
pad10 = body.newObject("PartDesign::Pad", "Pad009")
pad10.Profile = sketch14
pad10.setExpression("Length", "Params.pad10_length")
pad10.Reversed = True

# Sketch on XY plane
sketch15 = body.newObject("Sketcher::SketchObject", "Sketch014")
sketch15.AttachmentSupport = (doc.getObject("XY_Plane"), [""])
sketch15.MapMode = "FlatFace"
sketch15.addGeometry(Part.LineSegment(Vector(38.1, -2.5, 0), Vector(128.8, -2.5, 0)), False)
sketch15.addGeometry(Part.ArcOfCircle(Part.Circle(Vector(12.7, -19, 0), Vector(0, 0, 1), 117.2), math.radians(8.12), math.radians(10.84)), False)
sketch15.addGeometry(Part.LineSegment(Vector(127.8, 3, 0), Vector(37.2, 3, 0)), False)
sketch15.addGeometry(Part.ArcOfCircle(Part.Circle(Vector(0, -6.3, 0), Vector(0, 0, 1), 38.3), math.radians(5.79), math.radians(14.12)), False)
sketch15.addGeometry(Part.LineSegment(Vector(0, 32, 0), Vector(0, 97.2, 0)), False)
sketch15.addGeometry(Part.ArcOfCircle(Part.Circle(Vector(12.7, 12.7, 0), Vector(0, 0, 1), 85.5), math.radians(98.54), math.radians(103.15)), False)
sketch15.addGeometry(Part.LineSegment(Vector(-6.7, 95.9, 0), Vector(-6.7, 31.3, 0)), False)
sketch15.addGeometry(Part.ArcOfCircle(Part.Circle(Vector(0, 0, 0), Vector(0, 0, 1), 32), math.radians(90), math.radians(102.17)), False)
sketch15.addGeometry(Part.LineSegment(Vector(0, 3, 0), Vector(0, 22, 0)), False)
sketch15.addGeometry(Part.ArcOfCircle(Part.Circle(Vector(0, 0, 0), Vector(0, 0, 1), 22), math.radians(90), math.radians(107.87)), False)
sketch15.addGeometry(Part.LineSegment(Vector(-6.7, 20.9, 0), Vector(-6.7, 3, 0)), False)
sketch15.addGeometry(Part.LineSegment(Vector(-6.7, 3, 0), Vector(-21.8, 3.2, 0)), False)
sketch15.addGeometry(Part.ArcOfCircle(Part.Circle(Vector(0, 0, 0), Vector(0, 0, 1), 22), math.radians(171.62), math.radians(180)), False)
sketch15.addGeometry(Part.LineSegment(Vector(-22, 0, 0), Vector(-19, 0, 0)), False)
sketch15.addGeometry(Part.LineSegment(Vector(-19, 0, 0), Vector(-19, -2.5, 0)), False)
sketch15.addGeometry(Part.LineSegment(Vector(-19, -2.5, 0), Vector(-6.7, -2.5, 0)), False)
sketch15.addGeometry(Part.LineSegment(Vector(-6.7, -2.5, 0), Vector(-6.7, -46.9, 0)), False)
sketch15.addGeometry(Part.ArcOfCircle(Part.Circle(Vector(-12.7, -6.3, 0), Vector(0, 0, 1), 41), math.radians(-81.65), math.radians(-71.85)), False)
sketch15.addGeometry(Part.LineSegment(Vector(0.1, -45.3, 0), Vector(0.1, -2.5, 0)), False)
sketch15.addGeometry(Part.LineSegment(Vector(0.1, -2.5, 0), Vector(28.1, -2.5, 0)), False)
sketch15.addGeometry(Part.ArcOfCircle(Part.Circle(Vector(0, -6.4, 0), Vector(0, 0, 1), 28.3), math.radians(7.85), math.radians(19.27)), False)
sketch15.addGeometry(Part.LineSegment(Vector(26.7, 3, 0), Vector(0, 3, 0)), False)
sketch15.addGeometry(Part.LineSegment(Vector(-31.8, 3.2, 0), Vector(-72, 3.2, 0)), False)
sketch15.addGeometry(Part.ArcOfCircle(Part.Circle(Vector(-12.7, 12.7, 0), Vector(0, 0, 1), 60.1), math.radians(-170.91), math.radians(-165.36)), False)
sketch15.addGeometry(Part.LineSegment(Vector(-70.8, -2.5, 0), Vector(-32, -2.5, 0)), False)
sketch15.addGeometry(Part.LineSegment(Vector(-32, -2.5, 0), Vector(-32, 0, 0)), False)
sketch15.addGeometry(Part.ArcOfCircle(Part.Circle(Vector(0, 0, 0), Vector(0, 0, 1), 32), math.radians(174.25), math.radians(180)), False)
sketch15.addGeometry(Part.LineSegment(Vector(26.7, 21.1, 0), Vector(73.9, 80.9, 0)), False)
sketch15.addGeometry(Part.ArcOfCircle(Part.Circle(Vector(12.7, -19, 0), Vector(0, 0, 1), 117.2), math.radians(58.51), math.radians(61.8)), False)
sketch15.addGeometry(Part.LineSegment(Vector(68.1, 84.3, 0), Vector(21.6, 25.3, 0)), False)
sketch15.addGeometry(Part.ArcOfCircle(Part.Circle(Vector(0, -6.4, 0), Vector(0, 0, 1), 38.3), math.radians(45.76), math.radians(55.69)), False)
sketch15.addConstraint(Sketcher.Constraint("Coincident", 0, 2, 1, 1))
sketch15.addConstraint(Sketcher.Constraint("Coincident", 1, 2, 2, 1))
sketch15.addConstraint(Sketcher.Constraint("Coincident", 2, 2, 3, 2))
sketch15.addConstraint(Sketcher.Constraint("Coincident", 3, 1, 0, 1))
sketch15.addConstraint(Sketcher.Constraint("Coincident", 4, 2, 5, 1))
sketch15.addConstraint(Sketcher.Constraint("Coincident", 5, 2, 6, 1))
sketch15.addConstraint(Sketcher.Constraint("Coincident", 6, 2, 7, 2))
sketch15.addConstraint(Sketcher.Constraint("Coincident", 7, 1, 4, 1))
sketch15.addConstraint(Sketcher.Constraint("Coincident", 8, 2, 9, 1))
sketch15.addConstraint(Sketcher.Constraint("Coincident", 9, 2, 10, 1))
sketch15.addConstraint(Sketcher.Constraint("Coincident", 10, 2, 11, 1))
sketch15.addConstraint(Sketcher.Constraint("Coincident", 11, 2, 12, 1))
sketch15.addConstraint(Sketcher.Constraint("Coincident", 12, 2, 13, 1))
sketch15.addConstraint(Sketcher.Constraint("Coincident", 13, 2, 14, 1))
sketch15.addConstraint(Sketcher.Constraint("Coincident", 14, 2, 15, 1))
sketch15.addConstraint(Sketcher.Constraint("Coincident", 15, 2, 16, 1))
sketch15.addConstraint(Sketcher.Constraint("Coincident", 16, 2, 17, 1))
sketch15.addConstraint(Sketcher.Constraint("Coincident", 17, 2, 18, 1))
sketch15.addConstraint(Sketcher.Constraint("Coincident", 18, 2, 19, 1))
sketch15.addConstraint(Sketcher.Constraint("Coincident", 19, 2, 20, 1))
sketch15.addConstraint(Sketcher.Constraint("Coincident", 20, 2, 21, 1))
sketch15.addConstraint(Sketcher.Constraint("Coincident", 21, 2, 8, 1))
sketch15.addConstraint(Sketcher.Constraint("Coincident", 22, 2, 23, 1))
sketch15.addConstraint(Sketcher.Constraint("Coincident", 23, 2, 24, 1))
sketch15.addConstraint(Sketcher.Constraint("Coincident", 24, 2, 25, 1))
sketch15.addConstraint(Sketcher.Constraint("Tangent", 25, 2, 26, 2))
sketch15.addConstraint(Sketcher.Constraint("Coincident", 26, 1, 22, 1))
sketch15.addConstraint(Sketcher.Constraint("Coincident", 27, 2, 28, 1))
sketch15.addConstraint(Sketcher.Constraint("Coincident", 28, 2, 29, 1))
sketch15.addConstraint(Sketcher.Constraint("Coincident", 29, 2, 30, 2))
sketch15.addConstraint(Sketcher.Constraint("Coincident", 30, 1, 27, 1))
sketch15.addConstraint(Sketcher.Constraint("Horizontal", 0))
sketch15.addConstraint(Sketcher.Constraint("Horizontal", 2))
sketch15.addConstraint(Sketcher.Constraint("Vertical", 4))
sketch15.addConstraint(Sketcher.Constraint("Vertical", 6))
sketch15.addConstraint(Sketcher.Constraint("Vertical", 8))
sketch15.addConstraint(Sketcher.Constraint("Vertical", 10))
sketch15.addConstraint(Sketcher.Constraint("Horizontal", 13))
sketch15.addConstraint(Sketcher.Constraint("Vertical", 14))
sketch15.addConstraint(Sketcher.Constraint("Horizontal", 15))
sketch15.addConstraint(Sketcher.Constraint("Vertical", 16))
sketch15.addConstraint(Sketcher.Constraint("Vertical", 18))
sketch15.addConstraint(Sketcher.Constraint("Horizontal", 19))
sketch15.addConstraint(Sketcher.Constraint("Horizontal", 21))
sketch15.addConstraint(Sketcher.Constraint("Horizontal", 22))
sketch15.addConstraint(Sketcher.Constraint("Horizontal", 24))
sketch15.addConstraint(Sketcher.Constraint("Vertical", 25))
sketch15.addConstraint(Sketcher.Constraint("Coincident", 7, 3, -1, 1))
sketch15.addConstraint(Sketcher.Constraint("Coincident", 9, 3, -1, 1))
sketch15.addConstraint(Sketcher.Constraint("Coincident", 12, 3, -1, 1))
sketch15.addConstraint(Sketcher.Constraint("Coincident", 26, 3, -1, 1))
sketch15.addConstraint(Sketcher.Constraint("Coincident", 20, 3, 3, 3))
sketch15.addConstraint(Sketcher.Constraint("Coincident", 28, 3, 1, 3))
sketch15.addConstraint(Sketcher.Constraint("Coincident", 30, 3, 3, 3))
sketch15.addConstraint(Sketcher.Constraint("Equal", 9, 12))
sketch15.addConstraint(Sketcher.Constraint("Equal", 7, 26))
sketch15.addConstraint(Sketcher.Constraint("Equal", 1, 28))
sketch15.addConstraint(Sketcher.Constraint("Equal", 3, 30))
sketch15.addConstraint(Sketcher.Constraint("Symmetric", 5, 3, 23, 3, -2))
sketch15.addConstraint(Sketcher.Constraint("PointOnObject", 3, 3, -2))
sketch15.addConstraint(Sketcher.Constraint("PointOnObject", 4, 2, -2))
sketch15.addConstraint(Sketcher.Constraint("PointOnObject", 12, 2, -1))
sketch15.addConstraint(Sketcher.Constraint("Horizontal", 2, 2, 10, 2))
sketch15.addConstraint(Sketcher.Constraint("Horizontal", 3, 1, 14, 2))
sketch15.addConstraint(Sketcher.Constraint("Horizontal", 15, 2, 18, 2))
sketch15.addConstraint(Sketcher.Constraint("Horizontal", 10, 2, 20, 2))
sketch15.addConstraint(Sketcher.Constraint("Horizontal", 11, 2, 22, 2))
sketch15.addConstraint(Sketcher.Constraint("Vertical", 1, 3, 5, 3))
sketch15.addConstraint(Sketcher.Constraint("Vertical", 6, 2, 9, 2))
sketch15.addConstraint(Sketcher.Constraint("Vertical", 10, 2, 15, 2))
sketch15.addConstraint(Sketcher.Constraint("Vertical", 20, 2, 30, 1))
sketch15.addConstraint(Sketcher.Constraint("DistanceX", 13, 1, 13, 2, 3.0))
sketch15.addConstraint(Sketcher.Constraint("DistanceY", 8, 2, 7, 1, 10.0))
sketch15.addConstraint(Sketcher.Constraint("DistanceX", -1, 1, 1, 3, 12.700001))
sketch15.addConstraint(Sketcher.Constraint("DistanceY", -1, 1, 5, 3, 12.7))
sketch15.addConstraint(Sketcher.Constraint("Radius", 1, 117.237499))
sketch15.addConstraint(Sketcher.Constraint("Radius", 3, 38.3375))
sketch15.addConstraint(Sketcher.Constraint("Radius", 5, 85.4875))
sketch15.addConstraint(Sketcher.Constraint("Radius", 7, 31.9875))
sketch15.addConstraint(Sketcher.Constraint("Radius", 17, 41.0375))
sketch15.addConstraint(Sketcher.Constraint("Radius", 20, 28.3375))
sketch15.addConstraint(Sketcher.Constraint("Radius", 23, 60.087501))
sketch15.addConstraint(Sketcher.Constraint("DistanceY", 1, 3, 3, 3, 12.7))
sketch15.addConstraint(Sketcher.Constraint("DistanceY", 1, 3, -1, 1, 19.05))
sketch15.addConstraint(Sketcher.Constraint("DistanceX", 0, 1, 0, 2, 90.619029))
sketch15.addConstraint(Sketcher.Constraint("DistanceX", 2, 2, 2, 1, 90.66564))
sketch15.addConstraint(Sketcher.Constraint("DistanceX", 15, 1, 15, 2, 12.241928))
sketch15.addConstraint(Sketcher.Constraint("DistanceX", 19, 1, 19, 2, 27.99179))
sketch15.addConstraint(Sketcher.Constraint("DistanceY", 16, 2, 16, 1, 44.437982))
sketch15.addConstraint(Sketcher.Constraint("DistanceY", 18, 1, 18, 2, 42.830291))
sketch15.addConstraint(Sketcher.Constraint("Distance", 11, 15.008531))
sketch15.addConstraint(Sketcher.Constraint("Distance", 27, 76.184339))
sketch15.addConstraint(Sketcher.Constraint("Distance", 29, 75.081729))
sketch15.addConstraint(Sketcher.Constraint("DistanceX", 21, 2, 21, 1, 26.749885))
sketch15.addConstraint(Sketcher.Constraint("DistanceX", 24, 1, 24, 2, 38.849847))
sketch15.addConstraint(Sketcher.Constraint("DistanceX", 28, 2, 27, 2, 5.837771))
sketch15.setExpression("Constraints[71]", "Params.sketch15_width")
pad11 = body.newObject("PartDesign::Pad", "Pad010")
pad11.Profile = sketch15
pad11.setExpression("Length", "Params.pad11_length")
pad11.Reversed = True

# Sketch on an angled plane
sketch16 = body.newObject("Sketcher::SketchObject", "Sketch015")
sketch16.Placement = App.Placement(Vector(0, -2, 4), App.Rotation(Vector(1, 0, 0), Vector(0, 0.894427191, 0.447213595), Vector(0, -0.447213595, 0.894427191), "ZXY"))
sketch16.addGeometry(Part.Circle(Vector(-23.8, -1, 0), Vector(0, 0, 1), 0.7), False)
sketch16.addGeometry(Part.Circle(Vector(-20.6, -1, 0), Vector(0, 0, 1), 0.7), False)
sketch16.addConstraint(Sketcher.Constraint("Equal", 0, 1))
sketch16.addConstraint(Sketcher.Constraint("Horizontal", 0, 3, 1, 3))
sketch16.addConstraint(Sketcher.Constraint("Diameter", 0, 1.4))
sketch16.addConstraint(Sketcher.Constraint("DistanceY", 0, 3, -1, 1, 1.0))
sketch16.addConstraint(Sketcher.Constraint("DistanceX", 0, 3, 1, 3, 3.18))
sketch16.addConstraint(Sketcher.Constraint("DistanceX", 0, 3, -1, 1, 23.8075))
sketch16.setExpression("Constraints[2]", "Params.sketch16_diameter")
pad12 = body.newObject("PartDesign::Pad", "Pad011")
pad12.Profile = sketch16
pad12.setExpression("Length", "Params.pad12_length")

doc.recompute()
